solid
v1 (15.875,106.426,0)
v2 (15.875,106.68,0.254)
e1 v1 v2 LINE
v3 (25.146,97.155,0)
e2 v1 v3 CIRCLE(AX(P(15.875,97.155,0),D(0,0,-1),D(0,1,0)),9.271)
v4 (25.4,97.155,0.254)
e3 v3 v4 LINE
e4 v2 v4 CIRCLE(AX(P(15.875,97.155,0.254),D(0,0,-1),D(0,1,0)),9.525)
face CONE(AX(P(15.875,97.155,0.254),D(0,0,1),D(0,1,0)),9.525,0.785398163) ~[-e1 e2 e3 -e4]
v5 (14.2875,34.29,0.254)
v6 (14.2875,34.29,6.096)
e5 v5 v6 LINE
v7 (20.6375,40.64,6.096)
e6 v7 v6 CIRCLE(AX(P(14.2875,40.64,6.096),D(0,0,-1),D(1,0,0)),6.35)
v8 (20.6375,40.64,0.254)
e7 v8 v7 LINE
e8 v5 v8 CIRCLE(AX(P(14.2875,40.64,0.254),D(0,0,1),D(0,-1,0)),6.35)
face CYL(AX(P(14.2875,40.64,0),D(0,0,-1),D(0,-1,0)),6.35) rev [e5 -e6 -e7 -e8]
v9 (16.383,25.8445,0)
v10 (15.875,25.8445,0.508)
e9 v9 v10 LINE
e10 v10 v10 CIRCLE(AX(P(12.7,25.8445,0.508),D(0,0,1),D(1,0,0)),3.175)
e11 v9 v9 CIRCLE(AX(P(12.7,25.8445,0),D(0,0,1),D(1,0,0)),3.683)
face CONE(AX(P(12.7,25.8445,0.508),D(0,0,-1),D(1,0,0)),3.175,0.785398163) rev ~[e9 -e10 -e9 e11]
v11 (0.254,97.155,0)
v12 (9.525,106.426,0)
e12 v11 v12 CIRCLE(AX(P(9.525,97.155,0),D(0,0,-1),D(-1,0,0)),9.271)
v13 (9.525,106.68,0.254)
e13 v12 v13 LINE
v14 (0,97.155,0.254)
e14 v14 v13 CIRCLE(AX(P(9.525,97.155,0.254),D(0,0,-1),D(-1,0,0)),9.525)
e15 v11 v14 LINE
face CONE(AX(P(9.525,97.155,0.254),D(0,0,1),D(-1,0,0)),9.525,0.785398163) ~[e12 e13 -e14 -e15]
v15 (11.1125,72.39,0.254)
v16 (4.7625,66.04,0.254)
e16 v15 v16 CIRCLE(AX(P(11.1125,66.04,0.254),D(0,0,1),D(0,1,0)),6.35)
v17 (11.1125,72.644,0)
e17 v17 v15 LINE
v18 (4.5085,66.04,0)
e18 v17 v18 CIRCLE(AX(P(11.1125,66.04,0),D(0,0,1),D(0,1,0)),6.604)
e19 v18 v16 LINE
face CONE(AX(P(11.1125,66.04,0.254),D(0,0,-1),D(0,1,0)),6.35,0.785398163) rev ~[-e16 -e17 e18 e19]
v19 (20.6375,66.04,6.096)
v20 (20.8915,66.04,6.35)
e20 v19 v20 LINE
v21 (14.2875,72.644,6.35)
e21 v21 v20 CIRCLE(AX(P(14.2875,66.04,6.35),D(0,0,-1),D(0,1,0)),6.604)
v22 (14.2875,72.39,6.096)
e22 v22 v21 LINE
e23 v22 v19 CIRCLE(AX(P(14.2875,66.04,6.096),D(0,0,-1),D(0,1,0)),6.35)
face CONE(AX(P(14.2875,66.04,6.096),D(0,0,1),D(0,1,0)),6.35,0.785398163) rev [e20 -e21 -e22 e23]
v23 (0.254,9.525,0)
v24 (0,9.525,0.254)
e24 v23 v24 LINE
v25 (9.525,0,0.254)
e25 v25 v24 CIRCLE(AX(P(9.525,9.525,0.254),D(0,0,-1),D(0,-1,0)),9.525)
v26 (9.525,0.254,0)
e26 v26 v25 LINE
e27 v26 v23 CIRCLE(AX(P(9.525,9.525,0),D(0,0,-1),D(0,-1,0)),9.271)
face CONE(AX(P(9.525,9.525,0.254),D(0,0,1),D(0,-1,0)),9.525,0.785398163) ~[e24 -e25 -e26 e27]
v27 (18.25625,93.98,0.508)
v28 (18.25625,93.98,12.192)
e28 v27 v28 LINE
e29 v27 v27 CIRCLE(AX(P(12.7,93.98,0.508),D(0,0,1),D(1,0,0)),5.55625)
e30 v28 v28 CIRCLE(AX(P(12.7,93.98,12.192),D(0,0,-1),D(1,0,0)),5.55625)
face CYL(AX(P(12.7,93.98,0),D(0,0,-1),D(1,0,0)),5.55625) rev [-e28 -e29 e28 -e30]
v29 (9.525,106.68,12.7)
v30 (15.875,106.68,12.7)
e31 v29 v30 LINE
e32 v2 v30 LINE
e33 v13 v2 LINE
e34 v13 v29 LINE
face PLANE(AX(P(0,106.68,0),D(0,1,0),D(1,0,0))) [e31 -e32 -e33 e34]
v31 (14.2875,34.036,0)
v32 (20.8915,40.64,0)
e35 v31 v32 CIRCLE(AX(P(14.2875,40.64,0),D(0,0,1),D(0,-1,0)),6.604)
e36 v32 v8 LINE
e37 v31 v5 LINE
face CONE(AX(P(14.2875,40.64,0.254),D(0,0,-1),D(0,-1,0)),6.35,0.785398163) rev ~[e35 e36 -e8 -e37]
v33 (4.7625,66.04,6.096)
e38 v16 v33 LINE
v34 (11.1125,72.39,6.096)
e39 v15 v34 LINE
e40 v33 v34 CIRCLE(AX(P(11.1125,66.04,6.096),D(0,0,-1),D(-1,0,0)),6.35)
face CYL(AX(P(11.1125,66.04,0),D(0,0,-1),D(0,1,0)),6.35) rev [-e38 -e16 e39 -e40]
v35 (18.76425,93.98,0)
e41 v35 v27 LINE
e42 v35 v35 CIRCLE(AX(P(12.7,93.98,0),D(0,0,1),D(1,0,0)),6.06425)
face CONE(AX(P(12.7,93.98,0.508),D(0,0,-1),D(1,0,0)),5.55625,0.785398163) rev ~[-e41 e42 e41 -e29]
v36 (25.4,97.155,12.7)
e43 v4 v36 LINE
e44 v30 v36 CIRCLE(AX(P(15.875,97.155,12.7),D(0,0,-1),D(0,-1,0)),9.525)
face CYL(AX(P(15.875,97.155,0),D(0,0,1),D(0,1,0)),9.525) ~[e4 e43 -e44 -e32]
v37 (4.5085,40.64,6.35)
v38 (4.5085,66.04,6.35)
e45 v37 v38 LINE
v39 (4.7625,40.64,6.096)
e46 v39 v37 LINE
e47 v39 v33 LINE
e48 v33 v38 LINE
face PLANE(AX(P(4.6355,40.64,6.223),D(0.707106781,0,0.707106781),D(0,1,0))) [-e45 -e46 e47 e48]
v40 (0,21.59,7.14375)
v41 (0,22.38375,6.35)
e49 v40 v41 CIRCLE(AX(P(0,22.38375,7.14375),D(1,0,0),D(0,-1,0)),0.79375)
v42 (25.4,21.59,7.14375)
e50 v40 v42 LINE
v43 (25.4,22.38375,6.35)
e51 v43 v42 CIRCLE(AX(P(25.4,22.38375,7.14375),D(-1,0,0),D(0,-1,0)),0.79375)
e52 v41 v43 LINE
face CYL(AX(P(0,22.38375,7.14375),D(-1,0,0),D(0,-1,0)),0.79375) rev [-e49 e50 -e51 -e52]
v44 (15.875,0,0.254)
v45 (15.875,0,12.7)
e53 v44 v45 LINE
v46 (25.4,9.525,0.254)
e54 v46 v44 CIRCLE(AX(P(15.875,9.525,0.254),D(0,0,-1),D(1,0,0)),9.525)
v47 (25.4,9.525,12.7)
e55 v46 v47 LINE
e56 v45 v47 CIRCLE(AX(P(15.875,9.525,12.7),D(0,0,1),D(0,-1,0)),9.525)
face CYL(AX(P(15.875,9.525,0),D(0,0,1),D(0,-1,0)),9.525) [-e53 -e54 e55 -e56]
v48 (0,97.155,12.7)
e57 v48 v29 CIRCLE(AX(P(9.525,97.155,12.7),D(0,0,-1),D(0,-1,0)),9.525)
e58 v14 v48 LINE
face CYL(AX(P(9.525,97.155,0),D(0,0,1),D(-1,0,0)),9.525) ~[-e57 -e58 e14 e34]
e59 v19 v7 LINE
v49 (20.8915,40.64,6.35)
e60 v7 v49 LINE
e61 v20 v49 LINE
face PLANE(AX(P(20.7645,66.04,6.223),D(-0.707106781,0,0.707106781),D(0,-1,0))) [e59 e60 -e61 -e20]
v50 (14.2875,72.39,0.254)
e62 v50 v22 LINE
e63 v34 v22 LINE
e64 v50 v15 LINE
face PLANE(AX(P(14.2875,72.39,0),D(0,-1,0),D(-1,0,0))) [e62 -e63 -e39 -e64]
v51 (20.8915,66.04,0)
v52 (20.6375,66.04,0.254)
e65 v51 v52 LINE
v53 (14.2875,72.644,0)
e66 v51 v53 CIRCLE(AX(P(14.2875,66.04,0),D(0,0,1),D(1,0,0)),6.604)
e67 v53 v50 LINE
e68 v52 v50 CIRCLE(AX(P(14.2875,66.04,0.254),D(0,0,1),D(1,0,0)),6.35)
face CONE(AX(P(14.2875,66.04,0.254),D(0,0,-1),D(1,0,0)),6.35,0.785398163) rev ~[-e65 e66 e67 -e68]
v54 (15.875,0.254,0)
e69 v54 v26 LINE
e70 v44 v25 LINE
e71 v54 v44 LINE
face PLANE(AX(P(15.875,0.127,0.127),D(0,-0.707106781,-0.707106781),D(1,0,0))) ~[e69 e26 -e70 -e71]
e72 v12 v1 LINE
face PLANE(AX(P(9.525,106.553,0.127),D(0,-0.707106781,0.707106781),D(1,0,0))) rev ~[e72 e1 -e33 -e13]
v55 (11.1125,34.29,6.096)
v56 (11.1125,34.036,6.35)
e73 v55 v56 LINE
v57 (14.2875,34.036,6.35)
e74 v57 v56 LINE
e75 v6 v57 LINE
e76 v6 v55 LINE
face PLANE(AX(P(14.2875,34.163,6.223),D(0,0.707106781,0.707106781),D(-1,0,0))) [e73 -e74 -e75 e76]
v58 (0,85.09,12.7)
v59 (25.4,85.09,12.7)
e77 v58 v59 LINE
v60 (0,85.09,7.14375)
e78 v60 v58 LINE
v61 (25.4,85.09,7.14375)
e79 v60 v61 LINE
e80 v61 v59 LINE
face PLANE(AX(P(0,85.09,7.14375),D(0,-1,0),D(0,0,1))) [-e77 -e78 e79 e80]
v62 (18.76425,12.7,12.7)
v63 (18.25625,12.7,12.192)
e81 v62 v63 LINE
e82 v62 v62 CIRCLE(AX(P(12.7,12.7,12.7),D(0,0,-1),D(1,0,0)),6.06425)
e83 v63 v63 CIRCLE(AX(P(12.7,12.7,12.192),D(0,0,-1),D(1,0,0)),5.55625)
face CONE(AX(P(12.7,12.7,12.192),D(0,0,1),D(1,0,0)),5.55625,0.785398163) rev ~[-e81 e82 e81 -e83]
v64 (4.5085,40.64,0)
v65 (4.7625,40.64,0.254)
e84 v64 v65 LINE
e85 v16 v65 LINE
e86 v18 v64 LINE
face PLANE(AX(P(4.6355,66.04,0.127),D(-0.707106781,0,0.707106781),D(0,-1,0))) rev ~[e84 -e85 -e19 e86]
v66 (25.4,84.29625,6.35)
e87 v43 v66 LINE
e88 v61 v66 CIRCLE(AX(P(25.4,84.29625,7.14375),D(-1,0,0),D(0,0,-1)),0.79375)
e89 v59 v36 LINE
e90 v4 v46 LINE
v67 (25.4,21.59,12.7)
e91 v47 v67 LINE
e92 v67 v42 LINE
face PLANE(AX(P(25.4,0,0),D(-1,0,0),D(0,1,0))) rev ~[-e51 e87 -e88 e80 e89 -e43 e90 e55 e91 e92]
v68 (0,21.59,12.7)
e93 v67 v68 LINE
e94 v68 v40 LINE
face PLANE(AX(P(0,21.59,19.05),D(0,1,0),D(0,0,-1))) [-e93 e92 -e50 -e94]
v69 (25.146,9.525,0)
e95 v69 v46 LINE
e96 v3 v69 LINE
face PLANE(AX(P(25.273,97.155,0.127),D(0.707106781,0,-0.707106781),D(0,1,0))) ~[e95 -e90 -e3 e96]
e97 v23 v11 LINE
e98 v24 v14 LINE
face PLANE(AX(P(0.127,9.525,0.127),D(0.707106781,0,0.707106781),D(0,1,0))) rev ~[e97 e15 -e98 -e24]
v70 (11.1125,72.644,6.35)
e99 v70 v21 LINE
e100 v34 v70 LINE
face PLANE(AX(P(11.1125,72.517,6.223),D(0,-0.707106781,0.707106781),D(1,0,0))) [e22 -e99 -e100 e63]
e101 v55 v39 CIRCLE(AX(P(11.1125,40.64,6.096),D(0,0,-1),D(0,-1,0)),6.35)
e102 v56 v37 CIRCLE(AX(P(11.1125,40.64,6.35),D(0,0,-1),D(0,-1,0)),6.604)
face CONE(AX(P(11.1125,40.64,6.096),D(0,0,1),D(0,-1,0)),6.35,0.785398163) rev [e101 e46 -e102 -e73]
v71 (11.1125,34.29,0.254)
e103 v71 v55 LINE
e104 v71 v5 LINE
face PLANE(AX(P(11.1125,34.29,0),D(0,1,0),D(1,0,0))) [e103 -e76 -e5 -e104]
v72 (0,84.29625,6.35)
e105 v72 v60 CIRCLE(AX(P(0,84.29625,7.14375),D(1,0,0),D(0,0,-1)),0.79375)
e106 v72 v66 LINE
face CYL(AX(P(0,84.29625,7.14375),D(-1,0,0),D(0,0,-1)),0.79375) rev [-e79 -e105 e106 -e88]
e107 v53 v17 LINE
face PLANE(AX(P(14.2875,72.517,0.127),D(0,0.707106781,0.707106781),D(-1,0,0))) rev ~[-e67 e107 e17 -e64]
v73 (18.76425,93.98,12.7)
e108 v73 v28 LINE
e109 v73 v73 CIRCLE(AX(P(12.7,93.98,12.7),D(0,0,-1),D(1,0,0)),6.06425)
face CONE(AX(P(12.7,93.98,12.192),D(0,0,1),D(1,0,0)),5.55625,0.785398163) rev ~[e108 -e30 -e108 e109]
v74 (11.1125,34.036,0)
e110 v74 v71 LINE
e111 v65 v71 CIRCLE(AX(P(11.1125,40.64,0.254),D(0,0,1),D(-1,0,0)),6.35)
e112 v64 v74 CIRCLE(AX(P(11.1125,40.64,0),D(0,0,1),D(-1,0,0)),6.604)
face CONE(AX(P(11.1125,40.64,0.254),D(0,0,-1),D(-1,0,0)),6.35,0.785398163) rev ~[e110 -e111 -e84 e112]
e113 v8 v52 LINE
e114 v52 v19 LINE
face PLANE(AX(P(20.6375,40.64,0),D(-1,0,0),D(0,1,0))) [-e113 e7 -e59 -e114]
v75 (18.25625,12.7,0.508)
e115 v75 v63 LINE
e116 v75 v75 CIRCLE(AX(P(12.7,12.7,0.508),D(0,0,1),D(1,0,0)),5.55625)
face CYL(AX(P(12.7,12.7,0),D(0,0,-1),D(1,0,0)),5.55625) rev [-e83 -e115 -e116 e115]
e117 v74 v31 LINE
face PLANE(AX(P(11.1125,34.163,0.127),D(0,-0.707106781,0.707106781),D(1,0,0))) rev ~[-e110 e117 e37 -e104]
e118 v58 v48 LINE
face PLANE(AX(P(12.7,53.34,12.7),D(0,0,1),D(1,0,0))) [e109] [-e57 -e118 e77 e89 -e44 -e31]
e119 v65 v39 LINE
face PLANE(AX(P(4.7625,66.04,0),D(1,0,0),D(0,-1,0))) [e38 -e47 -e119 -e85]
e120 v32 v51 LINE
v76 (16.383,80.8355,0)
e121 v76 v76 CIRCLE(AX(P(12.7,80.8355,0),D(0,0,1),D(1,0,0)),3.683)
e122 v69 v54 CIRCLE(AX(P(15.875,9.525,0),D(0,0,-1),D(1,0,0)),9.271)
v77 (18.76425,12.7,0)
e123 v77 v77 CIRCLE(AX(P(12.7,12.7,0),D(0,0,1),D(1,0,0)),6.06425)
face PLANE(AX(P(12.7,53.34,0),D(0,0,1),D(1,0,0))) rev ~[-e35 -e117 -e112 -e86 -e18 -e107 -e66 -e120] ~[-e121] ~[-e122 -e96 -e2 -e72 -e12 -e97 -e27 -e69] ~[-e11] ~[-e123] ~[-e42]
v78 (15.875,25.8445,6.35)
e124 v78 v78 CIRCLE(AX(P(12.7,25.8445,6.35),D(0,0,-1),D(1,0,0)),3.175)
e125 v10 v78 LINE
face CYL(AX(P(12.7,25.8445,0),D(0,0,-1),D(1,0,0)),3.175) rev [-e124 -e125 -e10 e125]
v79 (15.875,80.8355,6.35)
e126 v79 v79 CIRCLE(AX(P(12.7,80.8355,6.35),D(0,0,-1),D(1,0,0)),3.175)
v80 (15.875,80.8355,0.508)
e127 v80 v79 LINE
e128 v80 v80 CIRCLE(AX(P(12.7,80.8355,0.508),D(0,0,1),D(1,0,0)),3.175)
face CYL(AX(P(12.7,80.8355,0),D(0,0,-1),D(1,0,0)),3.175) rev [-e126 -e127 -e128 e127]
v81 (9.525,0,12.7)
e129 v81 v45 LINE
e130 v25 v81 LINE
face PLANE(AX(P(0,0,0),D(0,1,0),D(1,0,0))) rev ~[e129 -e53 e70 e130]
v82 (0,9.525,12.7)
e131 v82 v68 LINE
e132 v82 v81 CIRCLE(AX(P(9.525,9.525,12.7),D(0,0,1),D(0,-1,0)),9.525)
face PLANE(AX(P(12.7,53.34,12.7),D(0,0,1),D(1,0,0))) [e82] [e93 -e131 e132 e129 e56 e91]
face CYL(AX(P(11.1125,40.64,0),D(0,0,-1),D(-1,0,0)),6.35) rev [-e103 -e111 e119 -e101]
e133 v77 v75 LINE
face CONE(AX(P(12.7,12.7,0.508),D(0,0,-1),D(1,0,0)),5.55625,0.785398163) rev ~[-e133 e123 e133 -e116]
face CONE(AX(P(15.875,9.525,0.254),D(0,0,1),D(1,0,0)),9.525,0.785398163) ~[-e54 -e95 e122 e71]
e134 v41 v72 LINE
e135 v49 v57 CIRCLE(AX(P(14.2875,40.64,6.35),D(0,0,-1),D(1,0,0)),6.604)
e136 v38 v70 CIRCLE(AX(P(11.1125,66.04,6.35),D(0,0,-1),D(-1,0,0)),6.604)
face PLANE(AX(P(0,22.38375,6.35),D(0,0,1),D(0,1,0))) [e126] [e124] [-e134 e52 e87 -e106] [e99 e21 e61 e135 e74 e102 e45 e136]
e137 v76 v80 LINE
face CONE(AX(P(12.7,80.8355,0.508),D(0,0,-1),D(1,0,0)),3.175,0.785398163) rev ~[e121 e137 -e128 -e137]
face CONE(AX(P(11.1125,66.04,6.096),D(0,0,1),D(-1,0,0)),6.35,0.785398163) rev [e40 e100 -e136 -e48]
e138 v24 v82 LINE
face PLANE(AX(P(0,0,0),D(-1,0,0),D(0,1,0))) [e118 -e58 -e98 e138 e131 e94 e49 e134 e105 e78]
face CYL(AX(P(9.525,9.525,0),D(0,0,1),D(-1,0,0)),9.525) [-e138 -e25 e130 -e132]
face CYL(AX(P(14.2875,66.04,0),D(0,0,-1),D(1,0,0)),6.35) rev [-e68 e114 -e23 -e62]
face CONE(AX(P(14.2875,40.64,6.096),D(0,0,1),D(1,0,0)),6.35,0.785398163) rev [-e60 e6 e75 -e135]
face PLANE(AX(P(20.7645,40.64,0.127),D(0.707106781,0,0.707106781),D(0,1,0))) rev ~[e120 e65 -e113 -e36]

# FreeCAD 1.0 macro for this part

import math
import FreeCAD as App
import Part
import Sketcher
from FreeCAD import Vector
Q = App.Units.Quantity


def edges_at(feature, points):
    """Names of the edges that pass closest to the given points."""
    edges = feature.Shape.Edges
    near = lambda p: min(range(len(edges)), key=lambda i: edges[i].distToShape(Part.Vertex(*p))[0])
    return sorted({f"Edge{near(p) + 1}" for p in points})


def add_polygon(sketch, points):
    """Adds a closed chain of lines whose ends are joined by coincident constraints."""
    first, n = sketch.GeometryCount, len(points)
    for a, b in zip(points, points[1:] + points[:1]):
        sketch.addGeometry(Part.LineSegment(App.Vector(*a, 0), App.Vector(*b, 0)), False)
    for i in range(n):
        sketch.addConstraint(Sketcher.Constraint("Coincident", first + i, 2, first + (i + 1) % n, 1))

doc = App.newDocument("Part")
body = doc.addObject("PartDesign::Body", "Body")

# Sketch on XY plane
sketch1 = body.newObject("Sketcher::SketchObject", "Sketch")
sketch1.AttachmentSupport = (doc.getObject("XY_Plane"), [""])
sketch1.MapMode = "FlatFace"
add_polygon(sketch1, [(0, 107), (0, 0), (25, 0), (25, 107)])  # lines 0-3
sketch1.addConstraint([
    Sketcher.Constraint("Vertical", 0),
    Sketcher.Constraint("Horizontal", 1),
    Sketcher.Constraint("Vertical", 2),
    Sketcher.Constraint("Horizontal", 3),
    Sketcher.Constraint("Coincident", 0, 2, -1, 1),
    Sketcher.Constraint("DistanceX", 1, 1, 1, 2, Q("1 in")),
    Sketcher.Constraint("DistanceY", 0, 2, 0, 1, Q("4.2 in")),
])
pad1 = body.newObject("PartDesign::Pad", "Pad")
pad1.Profile = sketch1
pad1.Length = Q("0.5 in")

# Sketch on YZ plane
sketch2 = body.newObject("Sketcher::SketchObject", "Sketch001")
sketch2.AttachmentSupport = (doc.getObject("YZ_Plane"), [""])
sketch2.MapMode = "FlatFace"
sketch2.addGeometry([
    Part.ArcOfCircle(Part.Circle(Vector(22.4, 7.1, 0), Vector(0, 0, 1), 0.8), math.radians(180), math.radians(270)),  # 0
    Part.LineSegment(Vector(22.4, 6.3, 0), Vector(84.3, 6.3, 0)),  # 1
    Part.ArcOfCircle(Part.Circle(Vector(84.3, 7.1, 0), Vector(0, 0, 1), 0.8), math.radians(-90), math.radians(0)),  # 2
    Part.LineSegment(Vector(85.1, 7.1, 0), Vector(85.1, 19.1, 0)),  # 3
    Part.LineSegment(Vector(85.1, 19.1, 0), Vector(21.6, 19.1, 0)),  # 4
    Part.LineSegment(Vector(21.6, 19.1, 0), Vector(21.6, 7.1, 0)),  # 5
], False)
sketch2.addConstraint([
    Sketcher.Constraint("Tangent", 0, 2, 1, 1),
    Sketcher.Constraint("Tangent", 1, 2, 2, 1),
    Sketcher.Constraint("Tangent", 2, 2, 3, 1),
    Sketcher.Constraint("Coincident", 3, 2, 4, 1),
    Sketcher.Constraint("Coincident", 4, 2, 5, 1),
    Sketcher.Constraint("Tangent", 5, 2, 0, 1),
    Sketcher.Constraint("Horizontal", 1),
    Sketcher.Constraint("Vertical", 3),
    Sketcher.Constraint("Horizontal", 4),
    Sketcher.Constraint("Vertical", 5),
    Sketcher.Constraint("Equal", 0, 2),
    Sketcher.Constraint("DistanceX", 4, 2, 4, 1, Q("2.5 in")),
    Sketcher.Constraint("Radius", 0, Q("0.03125 in")),
    Sketcher.Constraint("DistanceY", 1, 2, 3, 2, Q("0.5 in")),
    Sketcher.Constraint("DistanceY", -1, 1, 0, 2, Q("0.25 in")),
    Sketcher.Constraint("DistanceX", -1, 1, 2, 2, Q("3.35 in")),
])
pocket1 = body.newObject("PartDesign::Pocket", "Pocket")
pocket1.Profile = sketch2
pocket1.Length = Q("1.1 in")
pocket1.Reversed = True

# Sketch on XY plane
sketch3 = body.newObject("Sketcher::SketchObject", "Sketch002")
sketch3.AttachmentSupport = (doc.getObject("XY_Plane"), [""])
sketch3.MapMode = "FlatFace"
sketch3.addGeometry([
    Part.Circle(Vector(12.7, 80.8, 0), Vector(0, 0, 1), 3.2),
    Part.Circle(Vector(12.7, 25.8, 0), Vector(0, 0, 1), 3.2),
], False)
sketch3.addConstraint([
    Sketcher.Constraint("Equal", 0, 1),
    Sketcher.Constraint("Vertical", 0, 3, 1, 3),
    Sketcher.Constraint("Diameter", 0, Q("0.25 in")),
    Sketcher.Constraint("DistanceX", -1, 1, 0, 3, Q("0.5 in")),
    Sketcher.Constraint("DistanceY", 1, 3, 0, 3, Q("2.165 in")),
    Sketcher.Constraint("DistanceY", -1, 1, 0, 3, Q("3.1825 in")),
])
pocket2 = body.newObject("PartDesign::Pocket", "Pocket001")
pocket2.Profile = sketch3
pocket2.Length = Q("1 in")
pocket2.Reversed = True

# Sketch on XY plane
sketch4 = body.newObject("Sketcher::SketchObject", "Sketch003")
sketch4.AttachmentSupport = (doc.getObject("XY_Plane"), [""])
sketch4.MapMode = "FlatFace"
sketch4.addGeometry([
    Part.Circle(Vector(13, 94, 0), Vector(0, 0, 1), 6),
    Part.Circle(Vector(13, 13, 0), Vector(0, 0, 1), 6),
], False)
sketch4.addConstraint([
    Sketcher.Constraint("Equal", 0, 1),
    Sketcher.Constraint("Vertical", 0, 3, 1, 3),
    Sketcher.Constraint("Diameter", 0, Q("0.4375 in")),
    Sketcher.Constraint("DistanceX", -1, 1, 0, 3, Q("0.5 in")),
    Sketcher.Constraint("DistanceY", -1, 1, 0, 3, Q("3.7 in")),
    Sketcher.Constraint("DistanceY", -1, 1, 1, 3, Q("0.5 in")),
])
pocket3 = body.newObject("PartDesign::Pocket", "Pocket002")
pocket3.Profile = sketch4
pocket3.Length = Q("1 in")
pocket3.Reversed = True

# Sketch on XY plane
sketch5 = body.newObject("Sketcher::SketchObject", "Sketch004")
sketch5.AttachmentSupport = (doc.getObject("XY_Plane"), [""])
sketch5.MapMode = "FlatFace"
sketch5.addGeometry([
    Part.LineSegment(Vector(14.3, 72.4, 0), Vector(11.1, 72.4, 0)),  # 0
    Part.ArcOfCircle(Part.Circle(Vector(11.1, 66, 0), Vector(0, 0, 1), 6.3), math.radians(90), math.radians(180)),  # 1
    Part.LineSegment(Vector(4.8, 66, 0), Vector(4.8, 40.6, 0)),  # 2
    Part.ArcOfCircle(Part.Circle(Vector(11.1, 40.6, 0), Vector(0, 0, 1), 6.3), math.radians(180), math.radians(270)),  # 3
    Part.LineSegment(Vector(11.1, 34.3, 0), Vector(14.3, 34.3, 0)),  # 4
    Part.ArcOfCircle(Part.Circle(Vector(14.3, 40.6, 0), Vector(0, 0, 1), 6.3), math.radians(-90), math.radians(0)),  # 5
    Part.LineSegment(Vector(20.6, 40.6, 0), Vector(20.6, 66, 0)),  # 6
    Part.ArcOfCircle(Part.Circle(Vector(14.3, 66, 0), Vector(0, 0, 1), 6.3), math.radians(0), math.radians(90)),  # 7
], False)
sketch5.addConstraint([
    Sketcher.Constraint("Tangent", 0, 2, 1, 1),
    Sketcher.Constraint("Tangent", 1, 2, 2, 1),
    Sketcher.Constraint("Tangent", 2, 2, 3, 1),
    Sketcher.Constraint("Tangent", 3, 2, 4, 1),
    Sketcher.Constraint("Tangent", 4, 2, 5, 1),
    Sketcher.Constraint("Tangent", 5, 2, 6, 1),
    Sketcher.Constraint("Tangent", 6, 2, 7, 1),
    Sketcher.Constraint("Tangent", 7, 2, 0, 1),
    Sketcher.Constraint("Horizontal", 0),
    Sketcher.Constraint("Vertical", 2),
    Sketcher.Constraint("Horizontal", 4),
    Sketcher.Constraint("Vertical", 6),
    Sketcher.Constraint("Equal", 1, 3),
    Sketcher.Constraint("Equal", 3, 5),
    Sketcher.Constraint("Equal", 5, 7),
    Sketcher.Constraint("DistanceY", 2, 2, 2, 1, Q("1 in")),
    Sketcher.Constraint("Radius", 1, Q("0.25 in")),
    Sketcher.Constraint("DistanceY", -1, 1, 1, 3, Q("2.6 in")),
    Sketcher.Constraint("DistanceX", 0, 2, 0, 1, Q("0.125 in")),
    Sketcher.Constraint("DistanceX", -1, 1, 1, 3, Q("0.4375 in")),
])
pocket4 = body.newObject("PartDesign::Pocket", "Pocket003")
pocket4.Profile = sketch5
pocket4.Length = Q("1 in")
pocket4.Reversed = True
doc.recompute()

chamfer = body.newObject("PartDesign::Chamfer", "Chamfer")
chamfer.Base = (pocket4, edges_at(pocket4, [
    (7.144, 12.7, 0),
    (7.144, 93.98, 0),
    (9.525, 80.835, 0),
    (9.525, 25.845, 0),
    (7.144, 93.98, 12.7),
    (7.144, 12.7, 12.7),
]))
chamfer.Size = Q("0.02 in")
doc.recompute()

chamfer2 = body.newObject("PartDesign::Chamfer", "Chamfer001")
chamfer2.Base = (chamfer, edges_at(chamfer, [(4.763, 53.34, 0), (20.637, 53.34, 6.35)]))
chamfer2.Size = Q("0.01 in")
doc.recompute()

fillet = body.newObject("PartDesign::Fillet", "Fillet")
fillet.Base = (chamfer2, edges_at(chamfer2, [
    (25.4, 0, 6.35),
    (0, 0, 6.35),
    (25.4, 106.68, 6.35),
    (0, 106.68, 6.35),
]))
fillet.Radius = Q("0.375 in")
doc.recompute()

chamfer3 = body.newObject("PartDesign::Chamfer", "Chamfer002")
chamfer3.Base = (fillet, edges_at(fillet, [(0, 53.34, 0)]))
chamfer3.Size = Q("0.01 in")

doc.recompute()
